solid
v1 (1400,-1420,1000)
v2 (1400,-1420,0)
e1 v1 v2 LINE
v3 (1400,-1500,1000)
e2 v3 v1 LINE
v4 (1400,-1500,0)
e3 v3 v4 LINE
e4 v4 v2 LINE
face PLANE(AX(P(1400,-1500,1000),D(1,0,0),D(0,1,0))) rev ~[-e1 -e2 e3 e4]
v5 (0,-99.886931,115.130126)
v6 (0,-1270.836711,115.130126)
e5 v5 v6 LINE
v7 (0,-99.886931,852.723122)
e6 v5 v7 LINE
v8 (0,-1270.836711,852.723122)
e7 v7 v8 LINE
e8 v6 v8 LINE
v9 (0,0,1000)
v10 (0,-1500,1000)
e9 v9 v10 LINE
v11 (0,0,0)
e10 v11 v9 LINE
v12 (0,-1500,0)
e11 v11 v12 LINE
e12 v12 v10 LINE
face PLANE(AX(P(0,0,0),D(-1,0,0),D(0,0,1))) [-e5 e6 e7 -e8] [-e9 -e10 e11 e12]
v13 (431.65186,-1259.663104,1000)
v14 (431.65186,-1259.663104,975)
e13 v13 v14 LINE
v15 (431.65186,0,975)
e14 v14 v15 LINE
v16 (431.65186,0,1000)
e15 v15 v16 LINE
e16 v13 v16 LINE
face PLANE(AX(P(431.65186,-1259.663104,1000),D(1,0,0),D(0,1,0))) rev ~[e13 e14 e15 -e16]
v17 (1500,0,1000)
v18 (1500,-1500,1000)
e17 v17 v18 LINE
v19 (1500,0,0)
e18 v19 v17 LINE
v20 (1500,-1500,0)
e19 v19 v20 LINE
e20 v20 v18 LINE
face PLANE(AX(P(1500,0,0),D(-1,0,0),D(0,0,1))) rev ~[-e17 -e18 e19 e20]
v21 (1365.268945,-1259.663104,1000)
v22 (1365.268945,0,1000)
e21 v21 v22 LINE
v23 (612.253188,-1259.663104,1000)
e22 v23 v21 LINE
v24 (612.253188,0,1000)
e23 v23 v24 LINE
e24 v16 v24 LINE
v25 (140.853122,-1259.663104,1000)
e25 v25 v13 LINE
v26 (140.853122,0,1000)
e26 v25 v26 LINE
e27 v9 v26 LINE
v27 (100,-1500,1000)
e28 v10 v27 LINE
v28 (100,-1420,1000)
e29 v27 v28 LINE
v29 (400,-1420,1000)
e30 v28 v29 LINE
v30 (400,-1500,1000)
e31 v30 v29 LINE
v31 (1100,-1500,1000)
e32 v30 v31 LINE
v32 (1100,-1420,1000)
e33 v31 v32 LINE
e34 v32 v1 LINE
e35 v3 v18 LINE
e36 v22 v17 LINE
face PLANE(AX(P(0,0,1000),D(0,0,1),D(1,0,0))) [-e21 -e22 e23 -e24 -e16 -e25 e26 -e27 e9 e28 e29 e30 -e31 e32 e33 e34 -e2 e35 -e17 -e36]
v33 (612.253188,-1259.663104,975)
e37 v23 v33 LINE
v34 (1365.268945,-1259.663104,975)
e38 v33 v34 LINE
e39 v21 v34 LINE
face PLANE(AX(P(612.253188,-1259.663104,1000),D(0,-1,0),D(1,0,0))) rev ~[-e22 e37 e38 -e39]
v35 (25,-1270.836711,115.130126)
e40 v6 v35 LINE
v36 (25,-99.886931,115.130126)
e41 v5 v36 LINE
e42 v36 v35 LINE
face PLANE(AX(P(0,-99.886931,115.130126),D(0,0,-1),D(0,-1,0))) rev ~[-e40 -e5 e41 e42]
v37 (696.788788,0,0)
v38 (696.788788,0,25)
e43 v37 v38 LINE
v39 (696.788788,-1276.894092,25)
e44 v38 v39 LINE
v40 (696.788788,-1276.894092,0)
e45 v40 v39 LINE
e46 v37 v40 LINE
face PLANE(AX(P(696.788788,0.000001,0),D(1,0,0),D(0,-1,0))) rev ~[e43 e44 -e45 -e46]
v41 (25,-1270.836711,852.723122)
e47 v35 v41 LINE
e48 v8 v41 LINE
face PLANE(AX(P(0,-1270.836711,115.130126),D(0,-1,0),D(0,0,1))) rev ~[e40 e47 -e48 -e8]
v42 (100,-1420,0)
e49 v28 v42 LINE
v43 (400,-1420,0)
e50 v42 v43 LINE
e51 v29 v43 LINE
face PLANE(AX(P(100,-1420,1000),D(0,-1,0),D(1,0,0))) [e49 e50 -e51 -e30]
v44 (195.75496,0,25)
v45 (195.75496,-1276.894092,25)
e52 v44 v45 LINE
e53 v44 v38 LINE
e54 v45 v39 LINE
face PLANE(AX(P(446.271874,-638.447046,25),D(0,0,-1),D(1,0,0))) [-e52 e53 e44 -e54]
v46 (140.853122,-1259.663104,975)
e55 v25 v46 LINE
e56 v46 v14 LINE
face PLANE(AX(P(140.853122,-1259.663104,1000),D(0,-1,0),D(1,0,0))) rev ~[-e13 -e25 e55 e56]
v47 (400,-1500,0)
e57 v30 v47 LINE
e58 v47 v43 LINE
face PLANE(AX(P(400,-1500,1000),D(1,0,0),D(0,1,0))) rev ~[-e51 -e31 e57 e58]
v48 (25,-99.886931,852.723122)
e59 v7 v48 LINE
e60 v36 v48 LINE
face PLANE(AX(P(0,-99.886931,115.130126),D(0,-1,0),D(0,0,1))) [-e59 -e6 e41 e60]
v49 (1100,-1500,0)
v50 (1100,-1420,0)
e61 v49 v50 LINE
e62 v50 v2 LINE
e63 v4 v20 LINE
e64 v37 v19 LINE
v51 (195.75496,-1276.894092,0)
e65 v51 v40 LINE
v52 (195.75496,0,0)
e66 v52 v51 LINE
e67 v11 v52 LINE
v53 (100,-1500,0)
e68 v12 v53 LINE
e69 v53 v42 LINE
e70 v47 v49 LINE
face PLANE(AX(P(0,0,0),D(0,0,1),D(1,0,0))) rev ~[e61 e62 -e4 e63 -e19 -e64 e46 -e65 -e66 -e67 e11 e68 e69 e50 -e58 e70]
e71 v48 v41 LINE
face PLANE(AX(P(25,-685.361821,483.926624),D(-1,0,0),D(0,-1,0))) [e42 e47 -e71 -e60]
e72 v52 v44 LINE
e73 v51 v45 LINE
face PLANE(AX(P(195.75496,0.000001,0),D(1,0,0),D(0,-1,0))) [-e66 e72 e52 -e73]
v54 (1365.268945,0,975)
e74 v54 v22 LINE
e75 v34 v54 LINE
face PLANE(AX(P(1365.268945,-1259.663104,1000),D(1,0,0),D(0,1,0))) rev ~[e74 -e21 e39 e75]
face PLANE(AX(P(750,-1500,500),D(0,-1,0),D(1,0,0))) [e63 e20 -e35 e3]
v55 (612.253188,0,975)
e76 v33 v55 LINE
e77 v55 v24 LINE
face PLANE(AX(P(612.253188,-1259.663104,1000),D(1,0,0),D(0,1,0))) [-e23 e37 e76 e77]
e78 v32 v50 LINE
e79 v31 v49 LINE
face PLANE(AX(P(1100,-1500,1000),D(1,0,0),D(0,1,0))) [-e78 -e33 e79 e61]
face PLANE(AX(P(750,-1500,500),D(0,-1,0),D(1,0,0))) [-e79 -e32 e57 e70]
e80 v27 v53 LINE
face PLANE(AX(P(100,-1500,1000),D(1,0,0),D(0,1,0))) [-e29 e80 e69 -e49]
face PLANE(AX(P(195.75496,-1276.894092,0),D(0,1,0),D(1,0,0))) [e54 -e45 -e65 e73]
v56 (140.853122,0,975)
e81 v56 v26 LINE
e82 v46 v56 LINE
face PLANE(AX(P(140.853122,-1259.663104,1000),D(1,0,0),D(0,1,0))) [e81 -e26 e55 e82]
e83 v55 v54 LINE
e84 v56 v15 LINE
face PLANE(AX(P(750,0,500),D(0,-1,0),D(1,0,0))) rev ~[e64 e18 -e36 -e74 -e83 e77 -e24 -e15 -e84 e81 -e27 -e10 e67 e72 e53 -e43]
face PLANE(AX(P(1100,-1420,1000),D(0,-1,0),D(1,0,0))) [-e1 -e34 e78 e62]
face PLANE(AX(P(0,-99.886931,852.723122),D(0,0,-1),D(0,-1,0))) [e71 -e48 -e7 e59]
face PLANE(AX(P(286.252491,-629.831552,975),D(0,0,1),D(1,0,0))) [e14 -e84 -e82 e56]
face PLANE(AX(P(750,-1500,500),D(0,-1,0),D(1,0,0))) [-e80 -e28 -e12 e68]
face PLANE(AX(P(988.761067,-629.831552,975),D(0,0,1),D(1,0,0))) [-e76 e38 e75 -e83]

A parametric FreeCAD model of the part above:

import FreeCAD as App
import Part
import Sketcher


def add_polygon(sketch, points):
    """Adds a closed chain of lines whose ends are joined by coincident constraints."""
    first, n = sketch.GeometryCount, len(points)
    for a, b in zip(points, points[1:] + points[:1]):
        sketch.addGeometry(Part.LineSegment(App.Vector(*a, 0), App.Vector(*b, 0)), False)
    for i in range(n):
        sketch.addConstraint(Sketcher.Constraint("Coincident", first + i, 2, first + (i + 1) % n, 1))

doc = App.newDocument("Part")
body = doc.addObject("PartDesign::Body", "Body")

# Sketch on XZ plane
sketch1 = body.newObject("Sketcher::SketchObject", "Sketch")
sketch1.AttachmentSupport = (doc.getObject("XZ_Plane"), [""])
sketch1.MapMode = "FlatFace"
add_polygon(sketch1, [(0, 1000), (0, 0), (1500, 0), (1500, 1000)])  # lines 0-3
sketch1.addConstraint([
    Sketcher.Constraint("Vertical", 0),
    Sketcher.Constraint("Horizontal", 1),
    Sketcher.Constraint("Vertical", 2),
    Sketcher.Constraint("Horizontal", 3),
    Sketcher.Constraint("Coincident", 0, 2, -1, 1),
    Sketcher.Constraint("DistanceX", 1, 1, 1, 2, 1500.0),
    Sketcher.Constraint("DistanceY", 0, 2, 0, 1, 1000.0),
])
pad1 = body.newObject("PartDesign::Pad", "Pad")
pad1.Profile = sketch1
pad1.Length = 1500

# Sketch on XY plane
sketch2 = body.newObject("Sketcher::SketchObject", "Sketch001")
sketch2.AttachmentSupport = (doc.getObject("XY_Plane"), [""])
sketch2.MapMode = "FlatFace"
sketch2.AttachmentOffset = App.Placement(App.Vector(0, 0, 1000), App.Rotation())
add_polygon(sketch2, [(100, -1420), (100, -1500), (400, -1500), (400, -1420)])  # lines 0-3
add_polygon(sketch2, [(1100, -1420), (1100, -1500), (1400, -1500), (1400, -1420)])  # lines 4-7
sketch2.addConstraint([
    Sketcher.Constraint("Vertical", 0),
    Sketcher.Constraint("Horizontal", 1),
    Sketcher.Constraint("Vertical", 2),
    Sketcher.Constraint("Horizontal", 3),
    Sketcher.Constraint("Vertical", 4),
    Sketcher.Constraint("Horizontal", 5),
    Sketcher.Constraint("Vertical", 6),
    Sketcher.Constraint("Horizontal", 7),
    Sketcher.Constraint("Horizontal", 1, 2, 4, 2),
    Sketcher.Constraint("Horizontal", 3, 2, 6, 2),
    Sketcher.Constraint("Equal", 3, 5),
    Sketcher.Constraint("DistanceX", 1, 1, 1, 2, 300.0),
    Sketcher.Constraint("DistanceY", 0, 2, 0, 1, 80.0),
    Sketcher.Constraint("DistanceX", -1, 1, 0, 2, 100.0),
    Sketcher.Constraint("DistanceY", 0, 2, -1, 1, 1500.0),
    Sketcher.Constraint("DistanceX", -1, 1, 4, 2, 1100.0),
])
pocket1 = body.newObject("PartDesign::Pocket", "Pocket")
pocket1.Profile = sketch2
pocket1.Length = 1000

# Sketch on XY plane
sketch3 = body.newObject("Sketcher::SketchObject", "Sketch002")
sketch3.AttachmentSupport = (doc.getObject("XY_Plane"), [""])
sketch3.MapMode = "FlatFace"
sketch3.AttachmentOffset = App.Placement(App.Vector(0, 0, 1000), App.Rotation())
add_polygon(sketch3, [(141, 0), (141, -1260), (432, -1260), (432, 0)])  # lines 0-3
add_polygon(sketch3, [(612, 0), (612, -1260), (1365, -1260), (1365, 0)])  # lines 4-7
sketch3.addConstraint([
    Sketcher.Constraint("Vertical", 0),
    Sketcher.Constraint("Horizontal", 1),
    Sketcher.Constraint("Vertical", 2),
    Sketcher.Constraint("Horizontal", 3),
    Sketcher.Constraint("Vertical", 4),
    Sketcher.Constraint("Horizontal", 5),
    Sketcher.Constraint("Vertical", 6),
    Sketcher.Constraint("Horizontal", 7),
    Sketcher.Constraint("PointOnObject", 2, 2, -1),
    Sketcher.Constraint("PointOnObject", 6, 2, -1),
    Sketcher.Constraint("Horizontal", 1, 2, 4, 2),
    Sketcher.Constraint("DistanceX", 1, 1, 1, 2, 290.798738),
    Sketcher.Constraint("DistanceX", 5, 1, 5, 2, 753.015757),
    Sketcher.Constraint("DistanceY", 0, 2, 0, 1, 1259.663105),
    Sketcher.Constraint("DistanceX", -1, 1, 1, 2, 431.65186),
    Sketcher.Constraint("DistanceX", -1, 1, 4, 2, 612.253188),
])
pocket2 = body.newObject("PartDesign::Pocket", "Pocket001")
pocket2.Profile = sketch3
pocket2.Length = 25

# Sketch on YZ plane
sketch4 = body.newObject("Sketcher::SketchObject", "Sketch003")
sketch4.AttachmentSupport = (doc.getObject("YZ_Plane"), [""])
sketch4.MapMode = "FlatFace"
add_polygon(sketch4, [(-100, 853), (-100, 115), (-1271, 115), (-1271, 853)])  # lines 0-3
sketch4.addConstraint([
    Sketcher.Constraint("Vertical", 0),
    Sketcher.Constraint("Horizontal", 1),
    Sketcher.Constraint("Vertical", 2),
    Sketcher.Constraint("Horizontal", 3),
    Sketcher.Constraint("DistanceX", 1, 2, 1, 1, 1170.94978),
    Sketcher.Constraint("DistanceY", 0, 2, 0, 1, 737.592996),
    Sketcher.Constraint("DistanceX", 0, 2, -1, 1, 99.886931),
    Sketcher.Constraint("DistanceY", -1, 1, 2, 2, 852.723122),
])
pocket3 = body.newObject("PartDesign::Pocket", "Pocket002")
pocket3.Profile = sketch4
pocket3.Length = 25
pocket3.Reversed = True

# Sketch on XY plane
sketch5 = body.newObject("Sketcher::SketchObject", "Sketch004")
sketch5.AttachmentSupport = (doc.getObject("XY_Plane"), [""])
sketch5.MapMode = "FlatFace"
add_polygon(sketch5, [(196, -1277), (196, 0), (697, 0), (697, -1277)])  # lines 0-3
sketch5.addConstraint([
    Sketcher.Constraint("Vertical", 0),
    Sketcher.Constraint("Horizontal", 1),
    Sketcher.Constraint("Vertical", 2),
    Sketcher.Constraint("Horizontal", 3),
    Sketcher.Constraint("PointOnObject", 0, 2, -1),
    Sketcher.Constraint("DistanceX", 1, 1, 1, 2, 501.033828),
    Sketcher.Constraint("DistanceY", 0, 1, 0, 2, 1276.894093),
    Sketcher.Constraint("DistanceX", -1, 1, 0, 2, 195.75496),
])
pocket4 = body.newObject("PartDesign::Pocket", "Pocket003")
pocket4.Profile = sketch5
pocket4.Length = 25
pocket4.Reversed = True

doc.recompute()
